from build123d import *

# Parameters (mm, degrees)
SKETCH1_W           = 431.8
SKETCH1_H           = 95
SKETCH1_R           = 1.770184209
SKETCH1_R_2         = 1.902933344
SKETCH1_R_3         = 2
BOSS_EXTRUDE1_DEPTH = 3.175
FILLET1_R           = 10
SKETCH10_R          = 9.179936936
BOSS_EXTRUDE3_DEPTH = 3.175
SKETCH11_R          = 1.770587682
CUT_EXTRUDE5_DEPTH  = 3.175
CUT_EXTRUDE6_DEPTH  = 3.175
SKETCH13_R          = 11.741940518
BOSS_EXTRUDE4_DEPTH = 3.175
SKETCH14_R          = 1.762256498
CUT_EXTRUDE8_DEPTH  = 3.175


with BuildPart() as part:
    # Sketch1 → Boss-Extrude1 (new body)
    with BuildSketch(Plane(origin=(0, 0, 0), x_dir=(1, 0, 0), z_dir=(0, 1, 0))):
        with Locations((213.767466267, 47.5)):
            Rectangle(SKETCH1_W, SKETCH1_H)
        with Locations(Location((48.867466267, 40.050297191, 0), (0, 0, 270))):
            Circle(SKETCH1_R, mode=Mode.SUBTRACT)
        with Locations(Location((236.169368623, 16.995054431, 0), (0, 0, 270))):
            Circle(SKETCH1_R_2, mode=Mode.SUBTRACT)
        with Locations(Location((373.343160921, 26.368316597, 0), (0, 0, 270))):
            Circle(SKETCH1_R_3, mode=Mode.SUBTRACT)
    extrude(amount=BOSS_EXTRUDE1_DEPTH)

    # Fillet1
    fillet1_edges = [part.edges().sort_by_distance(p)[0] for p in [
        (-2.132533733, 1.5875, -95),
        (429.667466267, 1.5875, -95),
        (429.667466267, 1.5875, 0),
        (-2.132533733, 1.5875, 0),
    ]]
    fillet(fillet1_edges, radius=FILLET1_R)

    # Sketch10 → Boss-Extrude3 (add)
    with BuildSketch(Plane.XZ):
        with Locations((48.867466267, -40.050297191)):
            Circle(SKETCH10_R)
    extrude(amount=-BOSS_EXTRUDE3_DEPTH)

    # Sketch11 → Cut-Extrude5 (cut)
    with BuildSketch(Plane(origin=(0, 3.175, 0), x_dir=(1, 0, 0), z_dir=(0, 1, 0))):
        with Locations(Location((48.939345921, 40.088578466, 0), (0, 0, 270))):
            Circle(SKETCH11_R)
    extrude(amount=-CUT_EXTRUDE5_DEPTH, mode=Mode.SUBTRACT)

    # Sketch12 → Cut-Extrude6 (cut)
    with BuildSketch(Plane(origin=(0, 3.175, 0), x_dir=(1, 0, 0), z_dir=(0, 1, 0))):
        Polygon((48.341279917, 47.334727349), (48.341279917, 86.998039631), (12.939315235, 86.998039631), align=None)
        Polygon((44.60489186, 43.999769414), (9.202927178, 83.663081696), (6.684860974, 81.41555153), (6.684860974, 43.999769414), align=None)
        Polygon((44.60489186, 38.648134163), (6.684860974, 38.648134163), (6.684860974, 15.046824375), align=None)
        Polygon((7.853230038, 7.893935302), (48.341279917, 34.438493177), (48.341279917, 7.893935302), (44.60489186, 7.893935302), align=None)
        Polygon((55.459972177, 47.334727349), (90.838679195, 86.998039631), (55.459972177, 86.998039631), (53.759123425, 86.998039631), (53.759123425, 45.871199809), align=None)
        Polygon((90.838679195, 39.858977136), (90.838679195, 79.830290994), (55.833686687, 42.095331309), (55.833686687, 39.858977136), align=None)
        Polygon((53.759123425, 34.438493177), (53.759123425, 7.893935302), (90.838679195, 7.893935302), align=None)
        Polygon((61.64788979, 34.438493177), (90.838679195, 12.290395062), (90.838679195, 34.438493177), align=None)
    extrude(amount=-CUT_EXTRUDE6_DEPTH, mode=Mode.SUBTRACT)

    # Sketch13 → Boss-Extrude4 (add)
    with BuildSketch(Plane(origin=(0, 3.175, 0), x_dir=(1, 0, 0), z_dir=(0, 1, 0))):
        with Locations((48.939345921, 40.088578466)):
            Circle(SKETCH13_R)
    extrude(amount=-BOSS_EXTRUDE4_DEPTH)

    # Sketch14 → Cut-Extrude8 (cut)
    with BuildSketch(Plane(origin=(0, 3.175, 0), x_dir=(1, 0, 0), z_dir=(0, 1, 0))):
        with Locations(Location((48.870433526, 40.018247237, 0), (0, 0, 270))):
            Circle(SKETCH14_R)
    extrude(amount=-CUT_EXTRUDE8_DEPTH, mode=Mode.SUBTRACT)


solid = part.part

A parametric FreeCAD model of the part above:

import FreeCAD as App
import Part
import Sketcher


def edges_at(feature, points):
    """Names of the edges that pass closest to the given points."""
    edges = feature.Shape.Edges
    near = lambda p: min(range(len(edges)), key=lambda i: edges[i].distToShape(Part.Vertex(*p))[0])
    return sorted({f"Edge{near(p) + 1}" for p in points})

doc = App.newDocument("Part")
params = doc.addObject("Spreadsheet::Sheet", "Params")
for row, (alias, value) in enumerate([
    ("sketch1_diameter", "4 mm"),
    ("sketch1_height", "95 mm"),
    ("sketch1_width", "431.8 mm"),
    ("pad1_length", "3.175 mm"),
    ("fillet_radius", "10 mm"),
    ("pad2_length", "3.175 mm"),
    ("pocket1_length", "3.175 mm"),
    ("pocket2_length", "3.175 mm"),
    ("pad3_length", "3.175 mm"),
    ("pocket3_length", "3.175 mm"),
], start=1):
    params.set(f"A{row}", alias)
    params.set(f"B{row}", "=" + value)
    params.setAlias(f"B{row}", alias)

body = doc.addObject("PartDesign::Body", "Body")

# Sketch on XZ plane
sketch1 = body.newObject("Sketcher::SketchObject", "Sketch")
sketch1.AttachmentSupport = (doc.getObject("XZ_Plane"), [""])
sketch1.MapMode = "FlatFace"
sketch1.addGeometry([
    Part.LineSegment(App.Vector(-2.1, -95, 0), App.Vector(-2.1, 0, 0)),  # 0
    Part.LineSegment(App.Vector(-2.1, 0, 0), App.Vector(429.7, 0, 0)),  # 1
    Part.LineSegment(App.Vector(429.7, 0, 0), App.Vector(429.7, -95, 0)),  # 2
    Part.LineSegment(App.Vector(429.7, -95, 0), App.Vector(-2.1, -95, 0)),  # 3
    Part.Circle(App.Vector(236.2, -17, 0), App.Vector(0, 0, 1), 1.9),  # 4
    Part.Circle(App.Vector(373.3, -26.4, 0), App.Vector(0, 0, 1), 2),  # 5
    Part.Circle(App.Vector(48.9, -40.1, 0), App.Vector(0, 0, 1), 1.8),  # 6
], False)
sketch1.addConstraint([
    Sketcher.Constraint("Coincident", 0, 2, 1, 1),
    Sketcher.Constraint("Coincident", 1, 2, 2, 1),
    Sketcher.Constraint("Coincident", 2, 2, 3, 1),
    Sketcher.Constraint("Coincident", 3, 2, 0, 1),
    Sketcher.Constraint("Vertical", 0),
    Sketcher.Constraint("Horizontal", 1),
    Sketcher.Constraint("Vertical", 2),
    Sketcher.Constraint("Horizontal", 3),
    Sketcher.Constraint("PointOnObject", 0, 2, -1),
    Sketcher.Constraint("Diameter", 5, 4.0),
    Sketcher.Constraint("DistanceY", 0, 1, 0, 2, 95.0),
    Sketcher.Constraint("DistanceX", 1, 1, 1, 2, 431.8),
    Sketcher.Constraint("DistanceX", 0, 2, 6, 3, 51.0),
    Sketcher.Constraint("Diameter", 6, 3.540368),
    Sketcher.Constraint("Diameter", 4, 3.805867),
    Sketcher.Constraint("DistanceX", -1, 1, 4, 3, 236.169369),
    Sketcher.Constraint("DistanceX", -1, 1, 5, 3, 373.343161),
    Sketcher.Constraint("DistanceY", 6, 3, 5, 3, 13.681981),
    Sketcher.Constraint("DistanceY", 4, 3, -1, 1, 16.995054),
    Sketcher.Constraint("DistanceY", 5, 3, -1, 1, 26.368317),
    Sketcher.Constraint("DistanceX", -1, 1, 6, 3, 48.867466),
])
sketch1.setExpression("Constraints[9]", "Params.sketch1_diameter")
sketch1.setExpression("Constraints[10]", "Params.sketch1_height")
sketch1.setExpression("Constraints[11]", "Params.sketch1_width")
pad1 = body.newObject("PartDesign::Pad", "Pad")
pad1.Profile = sketch1
pad1.setExpression("Length", "Params.pad1_length")
pad1.Reversed = True
doc.recompute()

fillet = body.newObject("PartDesign::Fillet", "Fillet")
fillet.Base = (pad1, edges_at(pad1, [
    (-2.133, 1.587, -95),
    (429.667, 1.587, -95),
    (429.667, 1.587, 0),
    (-2.133, 1.587, 0),
]))
fillet.setExpression("Radius", "Params.fillet_radius")

# Sketch on XZ plane
sketch2 = body.newObject("Sketcher::SketchObject", "Sketch001")
sketch2.AttachmentSupport = (doc.getObject("XZ_Plane"), [""])
sketch2.MapMode = "FlatFace"
sketch2.addGeometry(Part.Circle(App.Vector(49, -40, 0), App.Vector(0, 0, 1), 9), False)
sketch2.addConstraint([
    Sketcher.Constraint("Diameter", 0, 18.359874),
    Sketcher.Constraint("DistanceX", -1, 1, 0, 3, 48.867466),
    Sketcher.Constraint("DistanceY", 0, 3, -1, 1, 40.050297),
])
pad2 = body.newObject("PartDesign::Pad", "Pad001")
pad2.Profile = sketch2
pad2.setExpression("Length", "Params.pad2_length")
pad2.Reversed = True

# Sketch on XZ plane
sketch3 = body.newObject("Sketcher::SketchObject", "Sketch002")
sketch3.AttachmentSupport = (doc.getObject("XZ_Plane"), [""])
sketch3.MapMode = "FlatFace"
sketch3.AttachmentOffset = App.Placement(App.Vector(0, 0, -3.175), App.Rotation())
sketch3.addGeometry(Part.Circle(App.Vector(48.9, -40.1, 0), App.Vector(0, 0, 1), 1.8), False)
sketch3.addConstraint([
    Sketcher.Constraint("Diameter", 0, 3.541175),
    Sketcher.Constraint("DistanceY", 0, 3, -1, 1, 40.088578),
    Sketcher.Constraint("DistanceX", -1, 1, 0, 3, 48.939346),
])
pocket1 = body.newObject("PartDesign::Pocket", "Pocket")
pocket1.Profile = sketch3
pocket1.setExpression("Length", "Params.pocket1_length")
pocket1.Reversed = True

# Sketch on XZ plane
sketch4 = body.newObject("Sketcher::SketchObject", "Sketch003")
sketch4.AttachmentSupport = (doc.getObject("XZ_Plane"), [""])
sketch4.MapMode = "FlatFace"
sketch4.AttachmentOffset = App.Placement(App.Vector(0, 0, -3.175), App.Rotation())
sketch4.addGeometry([
    Part.LineSegment(App.Vector(48.3, -47.3, 0), App.Vector(48.3, -87, 0)),  # 0
    Part.LineSegment(App.Vector(48.3, -87, 0), App.Vector(12.9, -87, 0)),  # 1
    Part.LineSegment(App.Vector(12.9, -87, 0), App.Vector(48.3, -47.3, 0)),  # 2
    Part.LineSegment(App.Vector(44.6, -44, 0), App.Vector(9.2, -83.7, 0)),  # 3
    Part.LineSegment(App.Vector(9.2, -83.7, 0), App.Vector(6.7, -81.4, 0)),  # 4
    Part.LineSegment(App.Vector(6.7, -81.4, 0), App.Vector(6.7, -44, 0)),  # 5
    Part.LineSegment(App.Vector(6.7, -44, 0), App.Vector(44.6, -44, 0)),  # 6
    Part.LineSegment(App.Vector(44.6, -38.6, 0), App.Vector(6.7, -38.6, 0)),  # 7
    Part.LineSegment(App.Vector(6.7, -38.6, 0), App.Vector(6.7, -15, 0)),  # 8
    Part.LineSegment(App.Vector(6.7, -15, 0), App.Vector(44.6, -38.6, 0)),  # 9
    Part.LineSegment(App.Vector(48.3, -34.4, 0), App.Vector(7.9, -7.9, 0)),  # 10
    Part.LineSegment(App.Vector(7.9, -7.9, 0), App.Vector(48.3, -7.9, 0)),  # 11
    Part.LineSegment(App.Vector(48.3, -7.9, 0), App.Vector(48.3, -34.4, 0)),  # 12
    Part.LineSegment(App.Vector(55.5, -47.3, 0), App.Vector(90.8, -87, 0)),  # 13
    Part.LineSegment(App.Vector(90.8, -87, 0), App.Vector(53.8, -87, 0)),  # 14
    Part.LineSegment(App.Vector(53.8, -87, 0), App.Vector(53.8, -45.9, 0)),  # 15
    Part.LineSegment(App.Vector(53.8, -45.9, 0), App.Vector(55.5, -47.3, 0)),  # 16
    Part.LineSegment(App.Vector(90.8, -39.9, 0), App.Vector(90.8, -79.8, 0)),  # 17
    Part.LineSegment(App.Vector(90.8, -79.8, 0), App.Vector(55.8, -42.1, 0)),  # 18
    Part.LineSegment(App.Vector(55.8, -42.1, 0), App.Vector(55.8, -39.9, 0)),  # 19
    Part.LineSegment(App.Vector(55.8, -39.9, 0), App.Vector(90.8, -39.9, 0)),  # 20
    Part.LineSegment(App.Vector(53.8, -34.4, 0), App.Vector(53.8, -7.9, 0)),  # 21
    Part.LineSegment(App.Vector(53.8, -7.9, 0), App.Vector(90.8, -7.9, 0)),  # 22
    Part.LineSegment(App.Vector(90.8, -7.9, 0), App.Vector(53.8, -34.4, 0)),  # 23
    Part.LineSegment(App.Vector(61.6, -34.4, 0), App.Vector(90.8, -12.3, 0)),  # 24
    Part.LineSegment(App.Vector(90.8, -12.3, 0), App.Vector(90.8, -34.4, 0)),  # 25
    Part.LineSegment(App.Vector(90.8, -34.4, 0), App.Vector(61.6, -34.4, 0)),  # 26
], False)
sketch4.addConstraint([
    Sketcher.Constraint("Coincident", 0, 2, 1, 1),
    Sketcher.Constraint("Coincident", 1, 2, 2, 1),
    Sketcher.Constraint("Coincident", 2, 2, 0, 1),
    Sketcher.Constraint("Coincident", 3, 2, 4, 1),
    Sketcher.Constraint("Coincident", 4, 2, 5, 1),
    Sketcher.Constraint("Coincident", 5, 2, 6, 1),
    Sketcher.Constraint("Coincident", 6, 2, 3, 1),
    Sketcher.Constraint("Coincident", 7, 2, 8, 1),
    Sketcher.Constraint("Coincident", 8, 2, 9, 1),
    Sketcher.Constraint("Coincident", 9, 2, 7, 1),
    Sketcher.Constraint("Coincident", 10, 2, 11, 1),
    Sketcher.Constraint("Coincident", 11, 2, 12, 1),
    Sketcher.Constraint("Coincident", 12, 2, 10, 1),
    Sketcher.Constraint("Coincident", 13, 2, 14, 1),
    Sketcher.Constraint("Coincident", 14, 2, 15, 1),
    Sketcher.Constraint("Coincident", 15, 2, 16, 1),
    Sketcher.Constraint("Coincident", 16, 2, 13, 1),
    Sketcher.Constraint("Coincident", 17, 2, 18, 1),
    Sketcher.Constraint("Coincident", 18, 2, 19, 1),
    Sketcher.Constraint("Coincident", 19, 2, 20, 1),
    Sketcher.Constraint("Coincident", 20, 2, 17, 1),
    Sketcher.Constraint("Coincident", 21, 2, 22, 1),
    Sketcher.Constraint("Coincident", 22, 2, 23, 1),
    Sketcher.Constraint("Coincident", 23, 2, 21, 1),
    Sketcher.Constraint("Coincident", 24, 2, 25, 1),
    Sketcher.Constraint("Coincident", 25, 2, 26, 1),
    Sketcher.Constraint("Coincident", 26, 2, 24, 1),
    Sketcher.Constraint("Vertical", 0),
    Sketcher.Constraint("Horizontal", 1),
    Sketcher.Constraint("Vertical", 5),
    Sketcher.Constraint("Horizontal", 6),
    Sketcher.Constraint("Horizontal", 7),
    Sketcher.Constraint("Vertical", 8),
    Sketcher.Constraint("Horizontal", 11),
    Sketcher.Constraint("Vertical", 12),
    Sketcher.Constraint("Horizontal", 14),
    Sketcher.Constraint("Vertical", 15),
    Sketcher.Constraint("Vertical", 17),
    Sketcher.Constraint("Vertical", 19),
    Sketcher.Constraint("Horizontal", 20),
    Sketcher.Constraint("Vertical", 21),
    Sketcher.Constraint("Horizontal", 22),
    Sketcher.Constraint("Vertical", 25),
    Sketcher.Constraint("Horizontal", 26),
    Sketcher.Constraint("Parallel", 2, 3),
    Sketcher.Constraint("Perpendicular", 3, 4),
    Sketcher.Constraint("Horizontal", 1, 2, 13, 2),
    Sketcher.Constraint("Horizontal", 2, 2, 16, 2),
    Sketcher.Constraint("Horizontal", 11, 2, 21, 2),
    Sketcher.Constraint("Horizontal", 12, 2, 23, 2),
    Sketcher.Constraint("Horizontal", 23, 2, 25, 2),
    Sketcher.Constraint("Vertical", 5, 2, 7, 2),
    Sketcher.Constraint("Vertical", 6, 2, 9, 2),
    Sketcher.Constraint("Vertical", 2, 2, 11, 2),
    Sketcher.Constraint("Vertical", 13, 2, 17, 2),
    Sketcher.Constraint("Vertical", 15, 2, 21, 2),
    Sketcher.Constraint("Vertical", 20, 2, 22, 2),
    Sketcher.Constraint("Vertical", 22, 2, 24, 2),
    Sketcher.Constraint("Equal", 2, 3),
    Sketcher.Constraint("DistanceY", 25, 2, 25, 1, 22.148098),
    Sketcher.Constraint("DistanceX", 6, 1, 6, 2, 37.920031),
    Sketcher.Constraint("DistanceX", 11, 1, 11, 2, 40.48805),
    Sketcher.Constraint("DistanceX", 26, 2, 26, 1, 29.190789),
    Sketcher.Constraint("DistanceY", 8, 1, 8, 2, 23.60131),
    Sketcher.Constraint("DistanceY", 15, 1, 15, 2, 41.12684),
    Sketcher.Constraint("DistanceY", 15, 2, -1, 1, 45.8712),
    Sketcher.Constraint("DistanceY", 7, 2, 10, 2, 30.754199),
    Sketcher.Constraint("DistanceX", 0, 2, 13, 2, 42.497399),
    Sketcher.Constraint("Distance", 4, 3.375211),
    Sketcher.Constraint("Distance", 13, 53.149142),
    Sketcher.Constraint("Distance", 23, 45.601612),
    Sketcher.Constraint("DistanceX", 1, 2, 1, 1, 35.401965),
    Sketcher.Constraint("DistanceX", 14, 2, 14, 1, 37.079556),
    Sketcher.Constraint("DistanceX", 20, 1, 20, 2, 35.004993),
    Sketcher.Constraint("DistanceY", 17, 2, 17, 1, 39.971314),
    Sketcher.Constraint("DistanceY", 19, 1, 19, 2, 2.236354),
    Sketcher.Constraint("DistanceX", -1, 1, 0, 2, 48.34128),
    Sketcher.Constraint("DistanceY", 3, 2, -1, 1, 83.663082),
    Sketcher.Constraint("DistanceX", -1, 1, 4, 2, 6.684861),
    Sketcher.Constraint("DistanceY", 17, 2, -1, 1, 79.830291),
    Sketcher.Constraint("DistanceY", 18, 2, 12, 2, 7.656838),
])
pocket2 = body.newObject("PartDesign::Pocket", "Pocket001")
pocket2.Profile = sketch4
pocket2.setExpression("Length", "Params.pocket2_length")
pocket2.Reversed = True

# Sketch on XZ plane
sketch5 = body.newObject("Sketcher::SketchObject", "Sketch004")
sketch5.AttachmentSupport = (doc.getObject("XZ_Plane"), [""])
sketch5.MapMode = "FlatFace"
sketch5.AttachmentOffset = App.Placement(App.Vector(0, 0, -3.175), App.Rotation())
sketch5.addGeometry(Part.Circle(App.Vector(49, -40, 0), App.Vector(0, 0, 1), 12), False)
sketch5.addConstraint([
    Sketcher.Constraint("Diameter", 0, 23.483881),
    Sketcher.Constraint("DistanceY", 0, 3, -1, 1, 40.088578),
    Sketcher.Constraint("DistanceX", -1, 1, 0, 3, 48.939346),
])
pad3 = body.newObject("PartDesign::Pad", "Pad002")
pad3.Profile = sketch5
pad3.setExpression("Length", "Params.pad3_length")

# Sketch on XZ plane
sketch6 = body.newObject("Sketcher::SketchObject", "Sketch005")
sketch6.AttachmentSupport = (doc.getObject("XZ_Plane"), [""])
sketch6.MapMode = "FlatFace"
sketch6.AttachmentOffset = App.Placement(App.Vector(0, 0, -3.175), App.Rotation())
sketch6.addGeometry(Part.Circle(App.Vector(48.9, -40, 0), App.Vector(0, 0, 1), 1.8), False)
sketch6.addConstraint([
    Sketcher.Constraint("Diameter", 0, 3.524513),
    Sketcher.Constraint("DistanceX", -1, 1, 0, 3, 48.870434),
    Sketcher.Constraint("DistanceY", 0, 3, -1, 1, 40.018247),
])
pocket3 = body.newObject("PartDesign::Pocket", "Pocket002")
pocket3.Profile = sketch6
pocket3.setExpression("Length", "Params.pocket3_length")
pocket3.Reversed = True

doc.recompute()
